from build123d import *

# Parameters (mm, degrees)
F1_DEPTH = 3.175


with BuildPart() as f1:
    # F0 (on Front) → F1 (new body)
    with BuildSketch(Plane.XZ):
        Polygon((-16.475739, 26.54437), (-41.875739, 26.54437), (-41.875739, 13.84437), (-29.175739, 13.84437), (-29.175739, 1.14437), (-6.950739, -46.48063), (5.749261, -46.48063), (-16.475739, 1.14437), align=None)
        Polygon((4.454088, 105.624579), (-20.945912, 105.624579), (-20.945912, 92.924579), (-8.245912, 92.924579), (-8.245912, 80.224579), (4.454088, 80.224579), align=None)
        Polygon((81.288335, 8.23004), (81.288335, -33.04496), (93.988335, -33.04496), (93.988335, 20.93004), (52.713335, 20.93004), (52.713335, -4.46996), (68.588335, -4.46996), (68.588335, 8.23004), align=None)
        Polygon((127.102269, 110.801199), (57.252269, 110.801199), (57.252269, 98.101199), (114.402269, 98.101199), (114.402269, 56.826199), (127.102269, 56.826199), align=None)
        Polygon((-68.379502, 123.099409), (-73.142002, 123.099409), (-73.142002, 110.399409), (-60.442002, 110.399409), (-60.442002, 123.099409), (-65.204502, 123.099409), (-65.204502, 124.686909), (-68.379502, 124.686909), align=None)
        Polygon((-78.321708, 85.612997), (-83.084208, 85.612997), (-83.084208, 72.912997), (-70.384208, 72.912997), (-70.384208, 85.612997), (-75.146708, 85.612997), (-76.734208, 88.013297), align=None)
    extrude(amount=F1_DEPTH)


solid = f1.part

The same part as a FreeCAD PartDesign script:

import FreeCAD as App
import Part
import Sketcher

V = App.Vector
Q = App.Units.Quantity


def add_polygon(sketch, points):
    """Adds a closed chain of lines whose ends are joined by coincident constraints."""
    first, n = sketch.GeometryCount, len(points)
    for a, b in zip(points, points[1:] + points[:1]):
        sketch.addGeometry(Part.LineSegment(App.Vector(*a, 0), App.Vector(*b, 0)), False)
    for i in range(n):
        sketch.addConstraint(Sketcher.Constraint("Coincident", first + i, 2, first + (i + 1) % n, 1))

doc = App.newDocument("Part")
body = doc.addObject("PartDesign::Body", "Body")
body.AllowCompound = True

sketch1 = body.newObject("Sketcher::SketchObject", "Sketch")
sketch1.AttachmentSupport = (doc.getObject("XZ_Plane"), [""])
sketch1.MapMode = "FlatFace"
add_polygon(sketch1, [(-16.5, 26.5), (-41.9, 26.5), (-41.9, 13.8), (-29.2, 13.8), (-29.2, 1.1), (-7, -46.5), (5.7, -46.5), (-16.5, 1.1)])
add_polygon(sketch1, [(4.5, 105.6), (-20.9, 105.6), (-20.9, 92.9), (-8.2, 92.9), (-8.2, 80.2), (4.5, 80.2)])
add_polygon(sketch1, [(81.3, 8.2), (81.3, -33), (94, -33), (94, 20.9), (52.7, 20.9), (52.7, -4.5), (68.6, -4.5), (68.6, 8.2)])
add_polygon(sketch1, [(127.1, 110.8), (57.3, 110.8), (57.3, 98.1), (114.4, 98.1), (114.4, 56.8), (127.1, 56.8)])
add_polygon(sketch1, [(-68.4, 123.1), (-73.1, 123.1), (-73.1, 110.4), (-60.4, 110.4), (-60.4, 123.1), (-65.2, 123.1), (-65.2, 124.7), (-68.4, 124.7)])
add_polygon(sketch1, [(-78.3, 85.6), (-83.1, 85.6), (-83.1, 72.9), (-70.4, 72.9), (-70.4, 85.6), (-75.1, 85.6), (-76.7, 88)])
sketch1.addConstraint(Sketcher.Constraint("Horizontal", 0))
sketch1.addConstraint(Sketcher.Constraint("Vertical", 1))
sketch1.addConstraint(Sketcher.Constraint("Horizontal", 2))
sketch1.addConstraint(Sketcher.Constraint("Vertical", 3))
sketch1.addConstraint(Sketcher.Constraint("Horizontal", 5))
sketch1.addConstraint(Sketcher.Constraint("Vertical", 7))
sketch1.addConstraint(Sketcher.Constraint("Horizontal", 8))
sketch1.addConstraint(Sketcher.Constraint("Vertical", 9))
sketch1.addConstraint(Sketcher.Constraint("Horizontal", 10))
sketch1.addConstraint(Sketcher.Constraint("Vertical", 11))
sketch1.addConstraint(Sketcher.Constraint("Horizontal", 12))
sketch1.addConstraint(Sketcher.Constraint("Vertical", 13))
sketch1.addConstraint(Sketcher.Constraint("Vertical", 14))
sketch1.addConstraint(Sketcher.Constraint("Horizontal", 15))
sketch1.addConstraint(Sketcher.Constraint("Vertical", 16))
sketch1.addConstraint(Sketcher.Constraint("Horizontal", 17))
sketch1.addConstraint(Sketcher.Constraint("Vertical", 18))
sketch1.addConstraint(Sketcher.Constraint("Horizontal", 19))
sketch1.addConstraint(Sketcher.Constraint("Vertical", 20))
sketch1.addConstraint(Sketcher.Constraint("Horizontal", 21))
sketch1.addConstraint(Sketcher.Constraint("Horizontal", 22))
sketch1.addConstraint(Sketcher.Constraint("Vertical", 23))
sketch1.addConstraint(Sketcher.Constraint("Horizontal", 24))
sketch1.addConstraint(Sketcher.Constraint("Vertical", 25))
sketch1.addConstraint(Sketcher.Constraint("Horizontal", 26))
sketch1.addConstraint(Sketcher.Constraint("Vertical", 27))
sketch1.addConstraint(Sketcher.Constraint("Horizontal", 28))
sketch1.addConstraint(Sketcher.Constraint("Vertical", 29))
sketch1.addConstraint(Sketcher.Constraint("Horizontal", 30))
sketch1.addConstraint(Sketcher.Constraint("Vertical", 31))
sketch1.addConstraint(Sketcher.Constraint("Horizontal", 32))
sketch1.addConstraint(Sketcher.Constraint("Vertical", 33))
sketch1.addConstraint(Sketcher.Constraint("Horizontal", 34))
sketch1.addConstraint(Sketcher.Constraint("Vertical", 35))
sketch1.addConstraint(Sketcher.Constraint("Horizontal", 36))
sketch1.addConstraint(Sketcher.Constraint("Vertical", 37))
sketch1.addConstraint(Sketcher.Constraint("Horizontal", 38))
sketch1.addConstraint(Sketcher.Constraint("Vertical", 39))
sketch1.addConstraint(Sketcher.Constraint("Horizontal", 40))
sketch1.addConstraint(Sketcher.Constraint("Parallel", 4, 6))
sketch1.addConstraint(Sketcher.Constraint("Horizontal", 3, 2, 6, 2))
sketch1.addConstraint(Sketcher.Constraint("Horizontal", 28, 2, 31, 2))
sketch1.addConstraint(Sketcher.Constraint("Horizontal", 36, 2, 39, 2))
sketch1.addConstraint(Sketcher.Constraint("Equal", 2, 5))
sketch1.addConstraint(Sketcher.Constraint("Equal", 0, 8))
sketch1.addConstraint(Sketcher.Constraint("Equal", 5, 10))
sketch1.addConstraint(Sketcher.Constraint("Equal", 12, 15))
sketch1.addConstraint(Sketcher.Constraint("Equal", 15, 21))
sketch1.addConstraint(Sketcher.Constraint("Equal", 21, 26))
sketch1.addConstraint(Sketcher.Constraint("Equal", 26, 30))
sketch1.addConstraint(Sketcher.Constraint("Equal", 28, 32))
sketch1.addConstraint(Sketcher.Constraint("Equal", 32, 36))
sketch1.addConstraint(Sketcher.Constraint("Equal", 30, 38))
sketch1.addConstraint(Sketcher.Constraint("Equal", 36, 40))
sketch1.addConstraint(Sketcher.Constraint("Equal", 38, 1))
sketch1.addConstraint(Sketcher.Constraint("Equal", 1, 3))
sketch1.addConstraint(Sketcher.Constraint("Equal", 3, 9))
sketch1.addConstraint(Sketcher.Constraint("Equal", 9, 11))
sketch1.addConstraint(Sketcher.Constraint("Equal", 17, 14))
sketch1.addConstraint(Sketcher.Constraint("Equal", 13, 18))
sketch1.addConstraint(Sketcher.Constraint("Equal", 11, 20))
sketch1.addConstraint(Sketcher.Constraint("Equal", 20, 23))
sketch1.addConstraint(Sketcher.Constraint("Equal", 14, 25))
sketch1.addConstraint(Sketcher.Constraint("Equal", 23, 29))
sketch1.addConstraint(Sketcher.Constraint("Equal", 31, 37))
sketch1.addConstraint(Sketcher.Constraint("Equal", 41, 42))
sketch1.addConstraint(Sketcher.Constraint("DistanceX", 0, 2, 0, 1, Q("1 in")))
sketch1.addConstraint(Sketcher.Constraint("DistanceX", 22, 2, 22, 1, Q("2.75 in")))
sketch1.addConstraint(Sketcher.Constraint("DistanceX", 17, 2, 17, 1, Q("1.625 in")))
sketch1.addConstraint(Sketcher.Constraint("DistanceX", 28, 2, 28, 1, Q("0.1875 in")))
sketch1.addConstraint(Sketcher.Constraint("DistanceY", 33, 1, 33, 2, Q("0.0625 in")))
sketch1.addConstraint(Sketcher.Constraint("DistanceX", 3, 2, 4, 2, Q("0.875 in")))
sketch1.addConstraint(Sketcher.Constraint("DistanceY", 4, 2, 3, 2, Q("1.875 in")))
sketch1.addConstraint(Sketcher.Constraint("DistanceY", 40, 2, 41, 2, Q("0.0945 in")))
sketch1.addConstraint(Sketcher.Constraint("DistanceY", -1, 1, 22, 2, Q("110.801199 mm")))
sketch1.addConstraint(Sketcher.Constraint("DistanceX", 0, 2, -1, 1, Q("41.875739 mm")))
sketch1.addConstraint(Sketcher.Constraint("DistanceY", -1, 1, 0, 2, Q("26.54437 mm")))
sketch1.addConstraint(Sketcher.Constraint("DistanceX", 8, 2, -1, 1, Q("20.945912 mm")))
sketch1.addConstraint(Sketcher.Constraint("DistanceY", -1, 1, 8, 2, Q("105.624579 mm")))
sketch1.addConstraint(Sketcher.Constraint("DistanceY", 14, 2, -1, 1, Q("33.04496 mm")))
sketch1.addConstraint(Sketcher.Constraint("DistanceX", -1, 1, 22, 2, Q("57.252269 mm")))
sketch1.addConstraint(Sketcher.Constraint("DistanceY", -1, 1, 28, 2, Q("123.099409 mm")))
sketch1.addConstraint(Sketcher.Constraint("DistanceX", 36, 2, -1, 1, Q("83.084208 mm")))
sketch1.addConstraint(Sketcher.Constraint("DistanceX", 28, 2, 8, 2, Q("52.19609 mm")))
sketch1.addConstraint(Sketcher.Constraint("DistanceY", 37, 2, 28, 2, Q("50.186412 mm")))
sketch1.addConstraint(Sketcher.Constraint("DistanceX", -1, 1, 14, 2, Q("81.288335 mm")))
pad1 = body.newObject("PartDesign::Pad", "Pad")
pad1.Profile = sketch1
pad1.Length = Q("0.125 in")

doc.recompute()
